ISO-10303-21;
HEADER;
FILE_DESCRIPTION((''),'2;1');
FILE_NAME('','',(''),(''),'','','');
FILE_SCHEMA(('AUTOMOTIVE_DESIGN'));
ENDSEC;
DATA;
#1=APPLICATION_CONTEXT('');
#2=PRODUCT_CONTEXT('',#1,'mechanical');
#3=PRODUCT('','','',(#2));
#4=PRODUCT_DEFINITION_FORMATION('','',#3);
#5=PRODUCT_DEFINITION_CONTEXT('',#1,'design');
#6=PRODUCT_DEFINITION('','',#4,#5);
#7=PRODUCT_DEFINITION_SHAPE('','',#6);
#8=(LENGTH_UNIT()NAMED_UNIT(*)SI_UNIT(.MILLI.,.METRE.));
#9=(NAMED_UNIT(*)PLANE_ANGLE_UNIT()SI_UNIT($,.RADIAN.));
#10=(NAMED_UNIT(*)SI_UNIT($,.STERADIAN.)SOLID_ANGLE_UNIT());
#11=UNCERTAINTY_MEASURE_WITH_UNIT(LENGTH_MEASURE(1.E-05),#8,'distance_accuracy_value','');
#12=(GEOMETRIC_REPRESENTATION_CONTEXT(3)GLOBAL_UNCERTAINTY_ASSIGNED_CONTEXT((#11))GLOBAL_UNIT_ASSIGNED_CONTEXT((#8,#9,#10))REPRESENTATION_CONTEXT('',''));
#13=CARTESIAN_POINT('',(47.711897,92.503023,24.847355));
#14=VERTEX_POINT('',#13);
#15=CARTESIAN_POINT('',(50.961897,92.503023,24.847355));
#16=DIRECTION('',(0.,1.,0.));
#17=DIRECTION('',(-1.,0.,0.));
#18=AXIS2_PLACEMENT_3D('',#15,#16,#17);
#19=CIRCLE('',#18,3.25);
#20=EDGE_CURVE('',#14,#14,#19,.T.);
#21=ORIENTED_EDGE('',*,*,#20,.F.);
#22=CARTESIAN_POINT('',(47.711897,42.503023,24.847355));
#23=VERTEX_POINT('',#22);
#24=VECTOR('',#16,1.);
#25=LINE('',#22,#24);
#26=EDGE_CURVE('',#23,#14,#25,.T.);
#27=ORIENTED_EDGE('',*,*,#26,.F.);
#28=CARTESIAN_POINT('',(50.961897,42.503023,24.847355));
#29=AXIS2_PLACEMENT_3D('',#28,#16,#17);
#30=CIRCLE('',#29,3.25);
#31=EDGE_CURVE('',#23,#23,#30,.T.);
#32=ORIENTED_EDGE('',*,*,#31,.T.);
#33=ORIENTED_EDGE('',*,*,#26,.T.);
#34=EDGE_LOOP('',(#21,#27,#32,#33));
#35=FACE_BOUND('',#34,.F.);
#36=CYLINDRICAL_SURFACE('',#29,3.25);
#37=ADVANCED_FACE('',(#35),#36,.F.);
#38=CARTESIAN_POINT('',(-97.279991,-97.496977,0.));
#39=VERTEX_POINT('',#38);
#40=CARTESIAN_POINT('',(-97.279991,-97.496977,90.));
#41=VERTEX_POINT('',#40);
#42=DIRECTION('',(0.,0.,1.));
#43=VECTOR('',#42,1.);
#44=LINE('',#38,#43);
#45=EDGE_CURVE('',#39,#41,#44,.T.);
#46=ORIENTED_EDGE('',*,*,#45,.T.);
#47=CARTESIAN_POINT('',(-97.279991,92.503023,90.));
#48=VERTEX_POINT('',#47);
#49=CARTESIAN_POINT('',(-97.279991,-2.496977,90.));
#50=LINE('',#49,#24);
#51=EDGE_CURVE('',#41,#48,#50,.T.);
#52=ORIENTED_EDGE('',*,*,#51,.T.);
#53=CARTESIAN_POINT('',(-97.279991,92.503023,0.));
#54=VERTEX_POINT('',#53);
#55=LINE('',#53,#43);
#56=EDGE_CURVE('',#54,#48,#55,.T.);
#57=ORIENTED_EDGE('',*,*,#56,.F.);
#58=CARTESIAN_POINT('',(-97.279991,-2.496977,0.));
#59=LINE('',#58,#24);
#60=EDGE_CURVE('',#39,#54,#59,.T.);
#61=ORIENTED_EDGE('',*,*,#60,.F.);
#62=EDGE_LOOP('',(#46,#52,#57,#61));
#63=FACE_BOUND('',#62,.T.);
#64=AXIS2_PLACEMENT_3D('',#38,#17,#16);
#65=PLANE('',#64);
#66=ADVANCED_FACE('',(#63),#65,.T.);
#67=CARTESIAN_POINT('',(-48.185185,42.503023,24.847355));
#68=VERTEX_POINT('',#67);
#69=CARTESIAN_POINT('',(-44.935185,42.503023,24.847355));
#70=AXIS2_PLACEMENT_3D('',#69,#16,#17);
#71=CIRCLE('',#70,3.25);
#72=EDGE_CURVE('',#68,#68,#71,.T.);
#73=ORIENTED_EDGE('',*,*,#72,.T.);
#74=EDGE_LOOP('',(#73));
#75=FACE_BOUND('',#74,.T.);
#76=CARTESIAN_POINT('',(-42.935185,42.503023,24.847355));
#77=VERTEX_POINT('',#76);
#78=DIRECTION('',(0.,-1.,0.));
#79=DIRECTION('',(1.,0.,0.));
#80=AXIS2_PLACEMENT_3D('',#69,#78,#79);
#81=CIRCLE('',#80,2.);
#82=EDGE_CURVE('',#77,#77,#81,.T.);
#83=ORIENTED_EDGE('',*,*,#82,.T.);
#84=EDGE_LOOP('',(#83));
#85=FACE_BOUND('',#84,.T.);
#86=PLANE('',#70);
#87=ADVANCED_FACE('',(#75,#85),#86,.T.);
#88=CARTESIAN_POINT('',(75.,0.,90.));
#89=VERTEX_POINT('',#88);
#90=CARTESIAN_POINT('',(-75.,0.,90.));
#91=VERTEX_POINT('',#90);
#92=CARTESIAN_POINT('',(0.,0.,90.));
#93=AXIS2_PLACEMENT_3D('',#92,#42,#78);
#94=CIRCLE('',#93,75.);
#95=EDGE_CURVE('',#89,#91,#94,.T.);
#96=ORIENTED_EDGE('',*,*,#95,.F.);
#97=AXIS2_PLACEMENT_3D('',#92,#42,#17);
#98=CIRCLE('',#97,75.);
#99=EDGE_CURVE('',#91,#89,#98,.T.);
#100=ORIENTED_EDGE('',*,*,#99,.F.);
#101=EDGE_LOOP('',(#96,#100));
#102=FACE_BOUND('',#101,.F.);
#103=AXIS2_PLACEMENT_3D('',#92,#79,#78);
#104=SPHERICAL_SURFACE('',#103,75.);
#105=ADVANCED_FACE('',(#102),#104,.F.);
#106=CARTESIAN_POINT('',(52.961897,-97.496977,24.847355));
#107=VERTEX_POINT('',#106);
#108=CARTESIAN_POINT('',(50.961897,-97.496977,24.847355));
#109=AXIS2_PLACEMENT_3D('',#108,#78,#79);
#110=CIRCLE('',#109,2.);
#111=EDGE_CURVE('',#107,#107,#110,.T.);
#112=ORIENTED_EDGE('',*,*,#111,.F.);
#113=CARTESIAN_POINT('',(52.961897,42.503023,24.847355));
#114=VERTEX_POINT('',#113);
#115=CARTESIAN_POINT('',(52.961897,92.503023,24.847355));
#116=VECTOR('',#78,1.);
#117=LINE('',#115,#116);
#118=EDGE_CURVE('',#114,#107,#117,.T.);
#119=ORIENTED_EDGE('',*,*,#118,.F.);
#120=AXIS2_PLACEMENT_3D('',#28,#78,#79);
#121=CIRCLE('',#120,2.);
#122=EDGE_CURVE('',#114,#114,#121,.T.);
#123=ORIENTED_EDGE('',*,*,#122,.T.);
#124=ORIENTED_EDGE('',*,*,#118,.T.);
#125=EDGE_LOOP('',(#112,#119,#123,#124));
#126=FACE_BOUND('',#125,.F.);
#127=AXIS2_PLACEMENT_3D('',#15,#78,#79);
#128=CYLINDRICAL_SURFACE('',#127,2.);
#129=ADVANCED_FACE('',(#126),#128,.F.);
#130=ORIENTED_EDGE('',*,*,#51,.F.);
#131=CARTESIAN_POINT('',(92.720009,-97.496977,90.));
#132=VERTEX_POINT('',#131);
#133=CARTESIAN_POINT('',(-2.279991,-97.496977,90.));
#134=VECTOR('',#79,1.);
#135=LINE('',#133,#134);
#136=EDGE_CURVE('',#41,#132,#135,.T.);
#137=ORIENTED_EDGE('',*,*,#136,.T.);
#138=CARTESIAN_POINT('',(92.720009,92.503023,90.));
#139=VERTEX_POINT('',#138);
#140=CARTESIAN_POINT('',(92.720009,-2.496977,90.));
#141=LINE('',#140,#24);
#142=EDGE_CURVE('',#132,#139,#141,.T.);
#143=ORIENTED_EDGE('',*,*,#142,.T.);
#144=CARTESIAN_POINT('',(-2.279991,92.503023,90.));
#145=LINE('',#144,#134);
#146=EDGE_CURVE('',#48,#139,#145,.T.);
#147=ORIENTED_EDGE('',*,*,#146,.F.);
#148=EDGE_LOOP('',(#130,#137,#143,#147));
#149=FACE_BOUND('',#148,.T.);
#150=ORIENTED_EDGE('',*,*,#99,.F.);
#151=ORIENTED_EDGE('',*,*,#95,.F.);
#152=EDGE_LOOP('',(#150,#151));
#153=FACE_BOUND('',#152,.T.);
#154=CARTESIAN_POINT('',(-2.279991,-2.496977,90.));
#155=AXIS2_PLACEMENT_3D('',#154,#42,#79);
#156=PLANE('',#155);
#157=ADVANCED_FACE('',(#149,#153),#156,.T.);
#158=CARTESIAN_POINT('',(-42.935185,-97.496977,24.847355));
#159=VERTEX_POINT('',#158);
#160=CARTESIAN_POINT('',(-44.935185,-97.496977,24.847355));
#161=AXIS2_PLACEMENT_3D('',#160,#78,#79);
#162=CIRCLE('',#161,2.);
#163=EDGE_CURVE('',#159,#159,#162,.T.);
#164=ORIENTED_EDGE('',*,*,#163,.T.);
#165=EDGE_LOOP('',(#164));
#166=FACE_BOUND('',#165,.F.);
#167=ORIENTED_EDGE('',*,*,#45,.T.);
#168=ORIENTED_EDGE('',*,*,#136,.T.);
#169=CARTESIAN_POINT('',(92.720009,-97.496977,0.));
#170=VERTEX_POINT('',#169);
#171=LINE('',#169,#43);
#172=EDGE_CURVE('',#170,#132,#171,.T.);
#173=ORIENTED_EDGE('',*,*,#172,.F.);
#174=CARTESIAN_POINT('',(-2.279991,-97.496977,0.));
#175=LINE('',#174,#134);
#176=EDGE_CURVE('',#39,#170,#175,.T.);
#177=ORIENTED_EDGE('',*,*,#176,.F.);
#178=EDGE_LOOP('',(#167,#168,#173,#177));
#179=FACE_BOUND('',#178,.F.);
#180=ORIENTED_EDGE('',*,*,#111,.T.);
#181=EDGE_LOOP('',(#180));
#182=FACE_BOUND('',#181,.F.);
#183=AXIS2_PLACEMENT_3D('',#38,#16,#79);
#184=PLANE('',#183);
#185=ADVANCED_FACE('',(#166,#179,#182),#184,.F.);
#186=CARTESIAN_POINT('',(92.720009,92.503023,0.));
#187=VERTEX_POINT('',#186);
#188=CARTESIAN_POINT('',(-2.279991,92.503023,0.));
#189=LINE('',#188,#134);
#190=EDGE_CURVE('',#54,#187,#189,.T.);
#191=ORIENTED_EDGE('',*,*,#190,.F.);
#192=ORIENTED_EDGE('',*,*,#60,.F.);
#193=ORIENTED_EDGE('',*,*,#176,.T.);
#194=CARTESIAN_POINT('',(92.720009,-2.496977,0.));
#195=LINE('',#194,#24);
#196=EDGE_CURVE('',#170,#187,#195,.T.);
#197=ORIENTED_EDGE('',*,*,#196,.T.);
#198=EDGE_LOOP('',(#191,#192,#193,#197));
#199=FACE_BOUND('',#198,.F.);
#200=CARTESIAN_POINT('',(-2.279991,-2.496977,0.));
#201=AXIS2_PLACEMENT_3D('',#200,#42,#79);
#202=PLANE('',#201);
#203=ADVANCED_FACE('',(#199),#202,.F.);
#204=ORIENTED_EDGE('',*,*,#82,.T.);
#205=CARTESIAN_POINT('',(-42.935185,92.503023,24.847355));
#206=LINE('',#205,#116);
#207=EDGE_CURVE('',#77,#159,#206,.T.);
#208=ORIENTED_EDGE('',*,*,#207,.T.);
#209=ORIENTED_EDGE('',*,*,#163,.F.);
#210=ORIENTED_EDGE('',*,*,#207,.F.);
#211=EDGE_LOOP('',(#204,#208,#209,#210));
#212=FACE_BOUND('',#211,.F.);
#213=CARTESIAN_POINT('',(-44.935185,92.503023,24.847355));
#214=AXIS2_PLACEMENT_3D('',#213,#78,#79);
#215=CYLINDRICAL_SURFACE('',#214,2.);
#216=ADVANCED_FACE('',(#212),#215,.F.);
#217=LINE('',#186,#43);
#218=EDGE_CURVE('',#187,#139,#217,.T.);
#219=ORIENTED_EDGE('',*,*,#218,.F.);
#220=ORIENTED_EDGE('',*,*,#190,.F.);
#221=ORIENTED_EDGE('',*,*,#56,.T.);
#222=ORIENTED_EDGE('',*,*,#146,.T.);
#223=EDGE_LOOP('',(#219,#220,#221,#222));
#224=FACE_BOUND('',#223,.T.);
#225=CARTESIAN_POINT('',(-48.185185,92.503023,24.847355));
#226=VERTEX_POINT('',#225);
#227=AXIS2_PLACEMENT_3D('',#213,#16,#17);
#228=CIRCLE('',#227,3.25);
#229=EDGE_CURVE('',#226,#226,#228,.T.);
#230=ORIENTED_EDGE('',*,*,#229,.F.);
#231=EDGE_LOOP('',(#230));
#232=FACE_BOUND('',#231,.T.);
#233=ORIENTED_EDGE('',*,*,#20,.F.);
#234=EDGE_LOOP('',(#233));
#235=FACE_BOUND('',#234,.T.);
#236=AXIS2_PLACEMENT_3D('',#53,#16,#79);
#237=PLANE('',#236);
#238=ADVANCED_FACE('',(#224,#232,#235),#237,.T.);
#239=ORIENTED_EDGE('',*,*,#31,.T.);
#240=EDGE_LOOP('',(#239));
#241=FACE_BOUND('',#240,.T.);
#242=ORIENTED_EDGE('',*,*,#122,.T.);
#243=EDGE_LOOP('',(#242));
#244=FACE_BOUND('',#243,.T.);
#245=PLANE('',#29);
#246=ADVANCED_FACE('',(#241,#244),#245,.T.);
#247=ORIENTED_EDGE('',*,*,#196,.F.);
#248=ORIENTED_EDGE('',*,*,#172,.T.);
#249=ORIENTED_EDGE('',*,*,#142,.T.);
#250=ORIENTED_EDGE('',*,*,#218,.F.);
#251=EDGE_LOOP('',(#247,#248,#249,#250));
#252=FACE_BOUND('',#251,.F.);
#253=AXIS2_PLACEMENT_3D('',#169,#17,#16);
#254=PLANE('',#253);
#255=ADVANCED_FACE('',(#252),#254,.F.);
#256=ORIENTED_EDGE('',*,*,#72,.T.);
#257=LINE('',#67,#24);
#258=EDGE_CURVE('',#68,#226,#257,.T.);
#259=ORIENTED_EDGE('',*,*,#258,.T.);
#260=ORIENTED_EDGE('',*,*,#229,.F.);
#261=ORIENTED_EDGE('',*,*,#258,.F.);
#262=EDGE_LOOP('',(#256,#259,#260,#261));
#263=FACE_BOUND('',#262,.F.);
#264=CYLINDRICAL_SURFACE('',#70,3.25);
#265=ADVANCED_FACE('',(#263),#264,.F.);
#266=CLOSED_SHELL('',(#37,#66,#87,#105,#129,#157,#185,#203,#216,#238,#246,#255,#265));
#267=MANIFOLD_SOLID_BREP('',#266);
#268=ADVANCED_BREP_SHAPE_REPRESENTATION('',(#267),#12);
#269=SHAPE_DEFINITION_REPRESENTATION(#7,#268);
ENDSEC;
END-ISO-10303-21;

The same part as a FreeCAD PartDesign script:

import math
import FreeCAD as App
import Part
import Sketcher
Q = App.Units.Quantity


def add_polygon(sketch, points):
    """Adds a closed chain of lines whose ends are joined by coincident constraints."""
    first, n = sketch.GeometryCount, len(points)
    for a, b in zip(points, points[1:] + points[:1]):
        sketch.addGeometry(Part.LineSegment(App.Vector(*a, 0), App.Vector(*b, 0)), False)
    for i in range(n):
        sketch.addConstraint(Sketcher.Constraint("Coincident", first + i, 2, first + (i + 1) % n, 1))

doc = App.newDocument("Part")
body = doc.addObject("PartDesign::Body", "Body")

sketch1 = body.newObject("Sketcher::SketchObject", "Sketch")
sketch1.AttachmentSupport = (doc.getObject("XY_Plane"), [""])
sketch1.MapMode = "FlatFace"
add_polygon(sketch1, [(-97.279991, 92.503023), (-97.279991, -97.496977), (92.720009, -97.496977), (92.720009, 92.503023)])
sketch1.addConstraint([
    Sketcher.Constraint("Vertical", 0),
    Sketcher.Constraint("Horizontal", 1),
    Sketcher.Constraint("Vertical", 2),
    Sketcher.Constraint("Horizontal", 3),
    Sketcher.Constraint("Equal", 3, 0),
    Sketcher.Constraint("DistanceX", 1, 1, 1, 2, Q("190 mm")),
    Sketcher.Constraint("DistanceX", 0, 2, -1, 1, Q("97.279991 mm")),
    Sketcher.Constraint("DistanceY", 0, 2, -1, 1, Q("97.496977 mm")),
])
pad1 = body.newObject("PartDesign::Pad", "Pad")
pad1.Profile = sketch1
pad1.Length = 90

sketch2 = body.newObject("Sketcher::SketchObject", "Sketch001")
sketch2.AttachmentSupport = (doc.getObject("XY_Plane"), [""])
sketch2.MapMode = "FlatFace"
sketch2.AttachmentOffset = App.Placement(App.Vector(0, 0, 90), App.Rotation())
sketch2.addGeometry([
    Part.LineSegment(App.Vector(75, 0, 0), App.Vector(-75, 0, 0)),
    Part.ArcOfCircle(Part.Circle(App.Vector(0, 0, 0), App.Vector(0, 0, 1), 75), math.radians(180), math.radians(360)),
], False)
sketch2.addConstraint([
    Sketcher.Constraint("Coincident", 0, 1, 1, 2),
    Sketcher.Constraint("Coincident", 1, 1, 0, 2),
    Sketcher.Constraint("Horizontal", 0),
    Sketcher.Constraint("Coincident", 1, 3, -1, 1),
    Sketcher.Constraint("PointOnObject", 0, 1, -1),
    Sketcher.Constraint("Radius", 1, Q("75 mm")),
])
groove = body.newObject("PartDesign::Groove", "Groove")
groove.Profile = sketch2
groove.ReferenceAxis = (sketch2, ["H_Axis"])
groove.Angle = 360

sketch3 = body.newObject("Sketcher::SketchObject", "Sketch002")
sketch3.AttachmentSupport = (doc.getObject("XZ_Plane"), [""])
sketch3.MapMode = "FlatFace"
sketch3.AttachmentOffset = App.Placement(App.Vector(0, 0, -92.503023), App.Rotation())
sketch3.addGeometry([
    Part.Circle(App.Vector(-44.935185, 24.847355, 0), App.Vector(0, 0, 1), 2),
    Part.Circle(App.Vector(50.961897, 24.847355, 0), App.Vector(0, 0, 1), 2),
], False)
sketch3.addConstraint([
    Sketcher.Constraint("Equal", 0, 1),
    Sketcher.Constraint("Horizontal", 0, 3, 1, 3),
    Sketcher.Constraint("Diameter", 0, Q("4 mm")),
    Sketcher.Constraint("DistanceX", 0, 3, 1, 3, Q("95.897082 mm")),
    Sketcher.Constraint("DistanceX", 0, 3, -1, 1, Q("44.935185 mm")),
    Sketcher.Constraint("DistanceY", -1, 1, 0, 3, Q("24.847355 mm")),
])
doc.recompute()
hole = body.newObject("PartDesign::Hole", "Hole")
hole.Profile = sketch3
hole.ThreadType = "None"
hole.Diameter = 4
hole.DepthType = "ThroughAll"
hole.HoleCutType = "Counterbore"
hole.HoleCutDiameter = 6.5
hole.HoleCutDepth = 50
hole.Reversed = True

doc.recompute()
